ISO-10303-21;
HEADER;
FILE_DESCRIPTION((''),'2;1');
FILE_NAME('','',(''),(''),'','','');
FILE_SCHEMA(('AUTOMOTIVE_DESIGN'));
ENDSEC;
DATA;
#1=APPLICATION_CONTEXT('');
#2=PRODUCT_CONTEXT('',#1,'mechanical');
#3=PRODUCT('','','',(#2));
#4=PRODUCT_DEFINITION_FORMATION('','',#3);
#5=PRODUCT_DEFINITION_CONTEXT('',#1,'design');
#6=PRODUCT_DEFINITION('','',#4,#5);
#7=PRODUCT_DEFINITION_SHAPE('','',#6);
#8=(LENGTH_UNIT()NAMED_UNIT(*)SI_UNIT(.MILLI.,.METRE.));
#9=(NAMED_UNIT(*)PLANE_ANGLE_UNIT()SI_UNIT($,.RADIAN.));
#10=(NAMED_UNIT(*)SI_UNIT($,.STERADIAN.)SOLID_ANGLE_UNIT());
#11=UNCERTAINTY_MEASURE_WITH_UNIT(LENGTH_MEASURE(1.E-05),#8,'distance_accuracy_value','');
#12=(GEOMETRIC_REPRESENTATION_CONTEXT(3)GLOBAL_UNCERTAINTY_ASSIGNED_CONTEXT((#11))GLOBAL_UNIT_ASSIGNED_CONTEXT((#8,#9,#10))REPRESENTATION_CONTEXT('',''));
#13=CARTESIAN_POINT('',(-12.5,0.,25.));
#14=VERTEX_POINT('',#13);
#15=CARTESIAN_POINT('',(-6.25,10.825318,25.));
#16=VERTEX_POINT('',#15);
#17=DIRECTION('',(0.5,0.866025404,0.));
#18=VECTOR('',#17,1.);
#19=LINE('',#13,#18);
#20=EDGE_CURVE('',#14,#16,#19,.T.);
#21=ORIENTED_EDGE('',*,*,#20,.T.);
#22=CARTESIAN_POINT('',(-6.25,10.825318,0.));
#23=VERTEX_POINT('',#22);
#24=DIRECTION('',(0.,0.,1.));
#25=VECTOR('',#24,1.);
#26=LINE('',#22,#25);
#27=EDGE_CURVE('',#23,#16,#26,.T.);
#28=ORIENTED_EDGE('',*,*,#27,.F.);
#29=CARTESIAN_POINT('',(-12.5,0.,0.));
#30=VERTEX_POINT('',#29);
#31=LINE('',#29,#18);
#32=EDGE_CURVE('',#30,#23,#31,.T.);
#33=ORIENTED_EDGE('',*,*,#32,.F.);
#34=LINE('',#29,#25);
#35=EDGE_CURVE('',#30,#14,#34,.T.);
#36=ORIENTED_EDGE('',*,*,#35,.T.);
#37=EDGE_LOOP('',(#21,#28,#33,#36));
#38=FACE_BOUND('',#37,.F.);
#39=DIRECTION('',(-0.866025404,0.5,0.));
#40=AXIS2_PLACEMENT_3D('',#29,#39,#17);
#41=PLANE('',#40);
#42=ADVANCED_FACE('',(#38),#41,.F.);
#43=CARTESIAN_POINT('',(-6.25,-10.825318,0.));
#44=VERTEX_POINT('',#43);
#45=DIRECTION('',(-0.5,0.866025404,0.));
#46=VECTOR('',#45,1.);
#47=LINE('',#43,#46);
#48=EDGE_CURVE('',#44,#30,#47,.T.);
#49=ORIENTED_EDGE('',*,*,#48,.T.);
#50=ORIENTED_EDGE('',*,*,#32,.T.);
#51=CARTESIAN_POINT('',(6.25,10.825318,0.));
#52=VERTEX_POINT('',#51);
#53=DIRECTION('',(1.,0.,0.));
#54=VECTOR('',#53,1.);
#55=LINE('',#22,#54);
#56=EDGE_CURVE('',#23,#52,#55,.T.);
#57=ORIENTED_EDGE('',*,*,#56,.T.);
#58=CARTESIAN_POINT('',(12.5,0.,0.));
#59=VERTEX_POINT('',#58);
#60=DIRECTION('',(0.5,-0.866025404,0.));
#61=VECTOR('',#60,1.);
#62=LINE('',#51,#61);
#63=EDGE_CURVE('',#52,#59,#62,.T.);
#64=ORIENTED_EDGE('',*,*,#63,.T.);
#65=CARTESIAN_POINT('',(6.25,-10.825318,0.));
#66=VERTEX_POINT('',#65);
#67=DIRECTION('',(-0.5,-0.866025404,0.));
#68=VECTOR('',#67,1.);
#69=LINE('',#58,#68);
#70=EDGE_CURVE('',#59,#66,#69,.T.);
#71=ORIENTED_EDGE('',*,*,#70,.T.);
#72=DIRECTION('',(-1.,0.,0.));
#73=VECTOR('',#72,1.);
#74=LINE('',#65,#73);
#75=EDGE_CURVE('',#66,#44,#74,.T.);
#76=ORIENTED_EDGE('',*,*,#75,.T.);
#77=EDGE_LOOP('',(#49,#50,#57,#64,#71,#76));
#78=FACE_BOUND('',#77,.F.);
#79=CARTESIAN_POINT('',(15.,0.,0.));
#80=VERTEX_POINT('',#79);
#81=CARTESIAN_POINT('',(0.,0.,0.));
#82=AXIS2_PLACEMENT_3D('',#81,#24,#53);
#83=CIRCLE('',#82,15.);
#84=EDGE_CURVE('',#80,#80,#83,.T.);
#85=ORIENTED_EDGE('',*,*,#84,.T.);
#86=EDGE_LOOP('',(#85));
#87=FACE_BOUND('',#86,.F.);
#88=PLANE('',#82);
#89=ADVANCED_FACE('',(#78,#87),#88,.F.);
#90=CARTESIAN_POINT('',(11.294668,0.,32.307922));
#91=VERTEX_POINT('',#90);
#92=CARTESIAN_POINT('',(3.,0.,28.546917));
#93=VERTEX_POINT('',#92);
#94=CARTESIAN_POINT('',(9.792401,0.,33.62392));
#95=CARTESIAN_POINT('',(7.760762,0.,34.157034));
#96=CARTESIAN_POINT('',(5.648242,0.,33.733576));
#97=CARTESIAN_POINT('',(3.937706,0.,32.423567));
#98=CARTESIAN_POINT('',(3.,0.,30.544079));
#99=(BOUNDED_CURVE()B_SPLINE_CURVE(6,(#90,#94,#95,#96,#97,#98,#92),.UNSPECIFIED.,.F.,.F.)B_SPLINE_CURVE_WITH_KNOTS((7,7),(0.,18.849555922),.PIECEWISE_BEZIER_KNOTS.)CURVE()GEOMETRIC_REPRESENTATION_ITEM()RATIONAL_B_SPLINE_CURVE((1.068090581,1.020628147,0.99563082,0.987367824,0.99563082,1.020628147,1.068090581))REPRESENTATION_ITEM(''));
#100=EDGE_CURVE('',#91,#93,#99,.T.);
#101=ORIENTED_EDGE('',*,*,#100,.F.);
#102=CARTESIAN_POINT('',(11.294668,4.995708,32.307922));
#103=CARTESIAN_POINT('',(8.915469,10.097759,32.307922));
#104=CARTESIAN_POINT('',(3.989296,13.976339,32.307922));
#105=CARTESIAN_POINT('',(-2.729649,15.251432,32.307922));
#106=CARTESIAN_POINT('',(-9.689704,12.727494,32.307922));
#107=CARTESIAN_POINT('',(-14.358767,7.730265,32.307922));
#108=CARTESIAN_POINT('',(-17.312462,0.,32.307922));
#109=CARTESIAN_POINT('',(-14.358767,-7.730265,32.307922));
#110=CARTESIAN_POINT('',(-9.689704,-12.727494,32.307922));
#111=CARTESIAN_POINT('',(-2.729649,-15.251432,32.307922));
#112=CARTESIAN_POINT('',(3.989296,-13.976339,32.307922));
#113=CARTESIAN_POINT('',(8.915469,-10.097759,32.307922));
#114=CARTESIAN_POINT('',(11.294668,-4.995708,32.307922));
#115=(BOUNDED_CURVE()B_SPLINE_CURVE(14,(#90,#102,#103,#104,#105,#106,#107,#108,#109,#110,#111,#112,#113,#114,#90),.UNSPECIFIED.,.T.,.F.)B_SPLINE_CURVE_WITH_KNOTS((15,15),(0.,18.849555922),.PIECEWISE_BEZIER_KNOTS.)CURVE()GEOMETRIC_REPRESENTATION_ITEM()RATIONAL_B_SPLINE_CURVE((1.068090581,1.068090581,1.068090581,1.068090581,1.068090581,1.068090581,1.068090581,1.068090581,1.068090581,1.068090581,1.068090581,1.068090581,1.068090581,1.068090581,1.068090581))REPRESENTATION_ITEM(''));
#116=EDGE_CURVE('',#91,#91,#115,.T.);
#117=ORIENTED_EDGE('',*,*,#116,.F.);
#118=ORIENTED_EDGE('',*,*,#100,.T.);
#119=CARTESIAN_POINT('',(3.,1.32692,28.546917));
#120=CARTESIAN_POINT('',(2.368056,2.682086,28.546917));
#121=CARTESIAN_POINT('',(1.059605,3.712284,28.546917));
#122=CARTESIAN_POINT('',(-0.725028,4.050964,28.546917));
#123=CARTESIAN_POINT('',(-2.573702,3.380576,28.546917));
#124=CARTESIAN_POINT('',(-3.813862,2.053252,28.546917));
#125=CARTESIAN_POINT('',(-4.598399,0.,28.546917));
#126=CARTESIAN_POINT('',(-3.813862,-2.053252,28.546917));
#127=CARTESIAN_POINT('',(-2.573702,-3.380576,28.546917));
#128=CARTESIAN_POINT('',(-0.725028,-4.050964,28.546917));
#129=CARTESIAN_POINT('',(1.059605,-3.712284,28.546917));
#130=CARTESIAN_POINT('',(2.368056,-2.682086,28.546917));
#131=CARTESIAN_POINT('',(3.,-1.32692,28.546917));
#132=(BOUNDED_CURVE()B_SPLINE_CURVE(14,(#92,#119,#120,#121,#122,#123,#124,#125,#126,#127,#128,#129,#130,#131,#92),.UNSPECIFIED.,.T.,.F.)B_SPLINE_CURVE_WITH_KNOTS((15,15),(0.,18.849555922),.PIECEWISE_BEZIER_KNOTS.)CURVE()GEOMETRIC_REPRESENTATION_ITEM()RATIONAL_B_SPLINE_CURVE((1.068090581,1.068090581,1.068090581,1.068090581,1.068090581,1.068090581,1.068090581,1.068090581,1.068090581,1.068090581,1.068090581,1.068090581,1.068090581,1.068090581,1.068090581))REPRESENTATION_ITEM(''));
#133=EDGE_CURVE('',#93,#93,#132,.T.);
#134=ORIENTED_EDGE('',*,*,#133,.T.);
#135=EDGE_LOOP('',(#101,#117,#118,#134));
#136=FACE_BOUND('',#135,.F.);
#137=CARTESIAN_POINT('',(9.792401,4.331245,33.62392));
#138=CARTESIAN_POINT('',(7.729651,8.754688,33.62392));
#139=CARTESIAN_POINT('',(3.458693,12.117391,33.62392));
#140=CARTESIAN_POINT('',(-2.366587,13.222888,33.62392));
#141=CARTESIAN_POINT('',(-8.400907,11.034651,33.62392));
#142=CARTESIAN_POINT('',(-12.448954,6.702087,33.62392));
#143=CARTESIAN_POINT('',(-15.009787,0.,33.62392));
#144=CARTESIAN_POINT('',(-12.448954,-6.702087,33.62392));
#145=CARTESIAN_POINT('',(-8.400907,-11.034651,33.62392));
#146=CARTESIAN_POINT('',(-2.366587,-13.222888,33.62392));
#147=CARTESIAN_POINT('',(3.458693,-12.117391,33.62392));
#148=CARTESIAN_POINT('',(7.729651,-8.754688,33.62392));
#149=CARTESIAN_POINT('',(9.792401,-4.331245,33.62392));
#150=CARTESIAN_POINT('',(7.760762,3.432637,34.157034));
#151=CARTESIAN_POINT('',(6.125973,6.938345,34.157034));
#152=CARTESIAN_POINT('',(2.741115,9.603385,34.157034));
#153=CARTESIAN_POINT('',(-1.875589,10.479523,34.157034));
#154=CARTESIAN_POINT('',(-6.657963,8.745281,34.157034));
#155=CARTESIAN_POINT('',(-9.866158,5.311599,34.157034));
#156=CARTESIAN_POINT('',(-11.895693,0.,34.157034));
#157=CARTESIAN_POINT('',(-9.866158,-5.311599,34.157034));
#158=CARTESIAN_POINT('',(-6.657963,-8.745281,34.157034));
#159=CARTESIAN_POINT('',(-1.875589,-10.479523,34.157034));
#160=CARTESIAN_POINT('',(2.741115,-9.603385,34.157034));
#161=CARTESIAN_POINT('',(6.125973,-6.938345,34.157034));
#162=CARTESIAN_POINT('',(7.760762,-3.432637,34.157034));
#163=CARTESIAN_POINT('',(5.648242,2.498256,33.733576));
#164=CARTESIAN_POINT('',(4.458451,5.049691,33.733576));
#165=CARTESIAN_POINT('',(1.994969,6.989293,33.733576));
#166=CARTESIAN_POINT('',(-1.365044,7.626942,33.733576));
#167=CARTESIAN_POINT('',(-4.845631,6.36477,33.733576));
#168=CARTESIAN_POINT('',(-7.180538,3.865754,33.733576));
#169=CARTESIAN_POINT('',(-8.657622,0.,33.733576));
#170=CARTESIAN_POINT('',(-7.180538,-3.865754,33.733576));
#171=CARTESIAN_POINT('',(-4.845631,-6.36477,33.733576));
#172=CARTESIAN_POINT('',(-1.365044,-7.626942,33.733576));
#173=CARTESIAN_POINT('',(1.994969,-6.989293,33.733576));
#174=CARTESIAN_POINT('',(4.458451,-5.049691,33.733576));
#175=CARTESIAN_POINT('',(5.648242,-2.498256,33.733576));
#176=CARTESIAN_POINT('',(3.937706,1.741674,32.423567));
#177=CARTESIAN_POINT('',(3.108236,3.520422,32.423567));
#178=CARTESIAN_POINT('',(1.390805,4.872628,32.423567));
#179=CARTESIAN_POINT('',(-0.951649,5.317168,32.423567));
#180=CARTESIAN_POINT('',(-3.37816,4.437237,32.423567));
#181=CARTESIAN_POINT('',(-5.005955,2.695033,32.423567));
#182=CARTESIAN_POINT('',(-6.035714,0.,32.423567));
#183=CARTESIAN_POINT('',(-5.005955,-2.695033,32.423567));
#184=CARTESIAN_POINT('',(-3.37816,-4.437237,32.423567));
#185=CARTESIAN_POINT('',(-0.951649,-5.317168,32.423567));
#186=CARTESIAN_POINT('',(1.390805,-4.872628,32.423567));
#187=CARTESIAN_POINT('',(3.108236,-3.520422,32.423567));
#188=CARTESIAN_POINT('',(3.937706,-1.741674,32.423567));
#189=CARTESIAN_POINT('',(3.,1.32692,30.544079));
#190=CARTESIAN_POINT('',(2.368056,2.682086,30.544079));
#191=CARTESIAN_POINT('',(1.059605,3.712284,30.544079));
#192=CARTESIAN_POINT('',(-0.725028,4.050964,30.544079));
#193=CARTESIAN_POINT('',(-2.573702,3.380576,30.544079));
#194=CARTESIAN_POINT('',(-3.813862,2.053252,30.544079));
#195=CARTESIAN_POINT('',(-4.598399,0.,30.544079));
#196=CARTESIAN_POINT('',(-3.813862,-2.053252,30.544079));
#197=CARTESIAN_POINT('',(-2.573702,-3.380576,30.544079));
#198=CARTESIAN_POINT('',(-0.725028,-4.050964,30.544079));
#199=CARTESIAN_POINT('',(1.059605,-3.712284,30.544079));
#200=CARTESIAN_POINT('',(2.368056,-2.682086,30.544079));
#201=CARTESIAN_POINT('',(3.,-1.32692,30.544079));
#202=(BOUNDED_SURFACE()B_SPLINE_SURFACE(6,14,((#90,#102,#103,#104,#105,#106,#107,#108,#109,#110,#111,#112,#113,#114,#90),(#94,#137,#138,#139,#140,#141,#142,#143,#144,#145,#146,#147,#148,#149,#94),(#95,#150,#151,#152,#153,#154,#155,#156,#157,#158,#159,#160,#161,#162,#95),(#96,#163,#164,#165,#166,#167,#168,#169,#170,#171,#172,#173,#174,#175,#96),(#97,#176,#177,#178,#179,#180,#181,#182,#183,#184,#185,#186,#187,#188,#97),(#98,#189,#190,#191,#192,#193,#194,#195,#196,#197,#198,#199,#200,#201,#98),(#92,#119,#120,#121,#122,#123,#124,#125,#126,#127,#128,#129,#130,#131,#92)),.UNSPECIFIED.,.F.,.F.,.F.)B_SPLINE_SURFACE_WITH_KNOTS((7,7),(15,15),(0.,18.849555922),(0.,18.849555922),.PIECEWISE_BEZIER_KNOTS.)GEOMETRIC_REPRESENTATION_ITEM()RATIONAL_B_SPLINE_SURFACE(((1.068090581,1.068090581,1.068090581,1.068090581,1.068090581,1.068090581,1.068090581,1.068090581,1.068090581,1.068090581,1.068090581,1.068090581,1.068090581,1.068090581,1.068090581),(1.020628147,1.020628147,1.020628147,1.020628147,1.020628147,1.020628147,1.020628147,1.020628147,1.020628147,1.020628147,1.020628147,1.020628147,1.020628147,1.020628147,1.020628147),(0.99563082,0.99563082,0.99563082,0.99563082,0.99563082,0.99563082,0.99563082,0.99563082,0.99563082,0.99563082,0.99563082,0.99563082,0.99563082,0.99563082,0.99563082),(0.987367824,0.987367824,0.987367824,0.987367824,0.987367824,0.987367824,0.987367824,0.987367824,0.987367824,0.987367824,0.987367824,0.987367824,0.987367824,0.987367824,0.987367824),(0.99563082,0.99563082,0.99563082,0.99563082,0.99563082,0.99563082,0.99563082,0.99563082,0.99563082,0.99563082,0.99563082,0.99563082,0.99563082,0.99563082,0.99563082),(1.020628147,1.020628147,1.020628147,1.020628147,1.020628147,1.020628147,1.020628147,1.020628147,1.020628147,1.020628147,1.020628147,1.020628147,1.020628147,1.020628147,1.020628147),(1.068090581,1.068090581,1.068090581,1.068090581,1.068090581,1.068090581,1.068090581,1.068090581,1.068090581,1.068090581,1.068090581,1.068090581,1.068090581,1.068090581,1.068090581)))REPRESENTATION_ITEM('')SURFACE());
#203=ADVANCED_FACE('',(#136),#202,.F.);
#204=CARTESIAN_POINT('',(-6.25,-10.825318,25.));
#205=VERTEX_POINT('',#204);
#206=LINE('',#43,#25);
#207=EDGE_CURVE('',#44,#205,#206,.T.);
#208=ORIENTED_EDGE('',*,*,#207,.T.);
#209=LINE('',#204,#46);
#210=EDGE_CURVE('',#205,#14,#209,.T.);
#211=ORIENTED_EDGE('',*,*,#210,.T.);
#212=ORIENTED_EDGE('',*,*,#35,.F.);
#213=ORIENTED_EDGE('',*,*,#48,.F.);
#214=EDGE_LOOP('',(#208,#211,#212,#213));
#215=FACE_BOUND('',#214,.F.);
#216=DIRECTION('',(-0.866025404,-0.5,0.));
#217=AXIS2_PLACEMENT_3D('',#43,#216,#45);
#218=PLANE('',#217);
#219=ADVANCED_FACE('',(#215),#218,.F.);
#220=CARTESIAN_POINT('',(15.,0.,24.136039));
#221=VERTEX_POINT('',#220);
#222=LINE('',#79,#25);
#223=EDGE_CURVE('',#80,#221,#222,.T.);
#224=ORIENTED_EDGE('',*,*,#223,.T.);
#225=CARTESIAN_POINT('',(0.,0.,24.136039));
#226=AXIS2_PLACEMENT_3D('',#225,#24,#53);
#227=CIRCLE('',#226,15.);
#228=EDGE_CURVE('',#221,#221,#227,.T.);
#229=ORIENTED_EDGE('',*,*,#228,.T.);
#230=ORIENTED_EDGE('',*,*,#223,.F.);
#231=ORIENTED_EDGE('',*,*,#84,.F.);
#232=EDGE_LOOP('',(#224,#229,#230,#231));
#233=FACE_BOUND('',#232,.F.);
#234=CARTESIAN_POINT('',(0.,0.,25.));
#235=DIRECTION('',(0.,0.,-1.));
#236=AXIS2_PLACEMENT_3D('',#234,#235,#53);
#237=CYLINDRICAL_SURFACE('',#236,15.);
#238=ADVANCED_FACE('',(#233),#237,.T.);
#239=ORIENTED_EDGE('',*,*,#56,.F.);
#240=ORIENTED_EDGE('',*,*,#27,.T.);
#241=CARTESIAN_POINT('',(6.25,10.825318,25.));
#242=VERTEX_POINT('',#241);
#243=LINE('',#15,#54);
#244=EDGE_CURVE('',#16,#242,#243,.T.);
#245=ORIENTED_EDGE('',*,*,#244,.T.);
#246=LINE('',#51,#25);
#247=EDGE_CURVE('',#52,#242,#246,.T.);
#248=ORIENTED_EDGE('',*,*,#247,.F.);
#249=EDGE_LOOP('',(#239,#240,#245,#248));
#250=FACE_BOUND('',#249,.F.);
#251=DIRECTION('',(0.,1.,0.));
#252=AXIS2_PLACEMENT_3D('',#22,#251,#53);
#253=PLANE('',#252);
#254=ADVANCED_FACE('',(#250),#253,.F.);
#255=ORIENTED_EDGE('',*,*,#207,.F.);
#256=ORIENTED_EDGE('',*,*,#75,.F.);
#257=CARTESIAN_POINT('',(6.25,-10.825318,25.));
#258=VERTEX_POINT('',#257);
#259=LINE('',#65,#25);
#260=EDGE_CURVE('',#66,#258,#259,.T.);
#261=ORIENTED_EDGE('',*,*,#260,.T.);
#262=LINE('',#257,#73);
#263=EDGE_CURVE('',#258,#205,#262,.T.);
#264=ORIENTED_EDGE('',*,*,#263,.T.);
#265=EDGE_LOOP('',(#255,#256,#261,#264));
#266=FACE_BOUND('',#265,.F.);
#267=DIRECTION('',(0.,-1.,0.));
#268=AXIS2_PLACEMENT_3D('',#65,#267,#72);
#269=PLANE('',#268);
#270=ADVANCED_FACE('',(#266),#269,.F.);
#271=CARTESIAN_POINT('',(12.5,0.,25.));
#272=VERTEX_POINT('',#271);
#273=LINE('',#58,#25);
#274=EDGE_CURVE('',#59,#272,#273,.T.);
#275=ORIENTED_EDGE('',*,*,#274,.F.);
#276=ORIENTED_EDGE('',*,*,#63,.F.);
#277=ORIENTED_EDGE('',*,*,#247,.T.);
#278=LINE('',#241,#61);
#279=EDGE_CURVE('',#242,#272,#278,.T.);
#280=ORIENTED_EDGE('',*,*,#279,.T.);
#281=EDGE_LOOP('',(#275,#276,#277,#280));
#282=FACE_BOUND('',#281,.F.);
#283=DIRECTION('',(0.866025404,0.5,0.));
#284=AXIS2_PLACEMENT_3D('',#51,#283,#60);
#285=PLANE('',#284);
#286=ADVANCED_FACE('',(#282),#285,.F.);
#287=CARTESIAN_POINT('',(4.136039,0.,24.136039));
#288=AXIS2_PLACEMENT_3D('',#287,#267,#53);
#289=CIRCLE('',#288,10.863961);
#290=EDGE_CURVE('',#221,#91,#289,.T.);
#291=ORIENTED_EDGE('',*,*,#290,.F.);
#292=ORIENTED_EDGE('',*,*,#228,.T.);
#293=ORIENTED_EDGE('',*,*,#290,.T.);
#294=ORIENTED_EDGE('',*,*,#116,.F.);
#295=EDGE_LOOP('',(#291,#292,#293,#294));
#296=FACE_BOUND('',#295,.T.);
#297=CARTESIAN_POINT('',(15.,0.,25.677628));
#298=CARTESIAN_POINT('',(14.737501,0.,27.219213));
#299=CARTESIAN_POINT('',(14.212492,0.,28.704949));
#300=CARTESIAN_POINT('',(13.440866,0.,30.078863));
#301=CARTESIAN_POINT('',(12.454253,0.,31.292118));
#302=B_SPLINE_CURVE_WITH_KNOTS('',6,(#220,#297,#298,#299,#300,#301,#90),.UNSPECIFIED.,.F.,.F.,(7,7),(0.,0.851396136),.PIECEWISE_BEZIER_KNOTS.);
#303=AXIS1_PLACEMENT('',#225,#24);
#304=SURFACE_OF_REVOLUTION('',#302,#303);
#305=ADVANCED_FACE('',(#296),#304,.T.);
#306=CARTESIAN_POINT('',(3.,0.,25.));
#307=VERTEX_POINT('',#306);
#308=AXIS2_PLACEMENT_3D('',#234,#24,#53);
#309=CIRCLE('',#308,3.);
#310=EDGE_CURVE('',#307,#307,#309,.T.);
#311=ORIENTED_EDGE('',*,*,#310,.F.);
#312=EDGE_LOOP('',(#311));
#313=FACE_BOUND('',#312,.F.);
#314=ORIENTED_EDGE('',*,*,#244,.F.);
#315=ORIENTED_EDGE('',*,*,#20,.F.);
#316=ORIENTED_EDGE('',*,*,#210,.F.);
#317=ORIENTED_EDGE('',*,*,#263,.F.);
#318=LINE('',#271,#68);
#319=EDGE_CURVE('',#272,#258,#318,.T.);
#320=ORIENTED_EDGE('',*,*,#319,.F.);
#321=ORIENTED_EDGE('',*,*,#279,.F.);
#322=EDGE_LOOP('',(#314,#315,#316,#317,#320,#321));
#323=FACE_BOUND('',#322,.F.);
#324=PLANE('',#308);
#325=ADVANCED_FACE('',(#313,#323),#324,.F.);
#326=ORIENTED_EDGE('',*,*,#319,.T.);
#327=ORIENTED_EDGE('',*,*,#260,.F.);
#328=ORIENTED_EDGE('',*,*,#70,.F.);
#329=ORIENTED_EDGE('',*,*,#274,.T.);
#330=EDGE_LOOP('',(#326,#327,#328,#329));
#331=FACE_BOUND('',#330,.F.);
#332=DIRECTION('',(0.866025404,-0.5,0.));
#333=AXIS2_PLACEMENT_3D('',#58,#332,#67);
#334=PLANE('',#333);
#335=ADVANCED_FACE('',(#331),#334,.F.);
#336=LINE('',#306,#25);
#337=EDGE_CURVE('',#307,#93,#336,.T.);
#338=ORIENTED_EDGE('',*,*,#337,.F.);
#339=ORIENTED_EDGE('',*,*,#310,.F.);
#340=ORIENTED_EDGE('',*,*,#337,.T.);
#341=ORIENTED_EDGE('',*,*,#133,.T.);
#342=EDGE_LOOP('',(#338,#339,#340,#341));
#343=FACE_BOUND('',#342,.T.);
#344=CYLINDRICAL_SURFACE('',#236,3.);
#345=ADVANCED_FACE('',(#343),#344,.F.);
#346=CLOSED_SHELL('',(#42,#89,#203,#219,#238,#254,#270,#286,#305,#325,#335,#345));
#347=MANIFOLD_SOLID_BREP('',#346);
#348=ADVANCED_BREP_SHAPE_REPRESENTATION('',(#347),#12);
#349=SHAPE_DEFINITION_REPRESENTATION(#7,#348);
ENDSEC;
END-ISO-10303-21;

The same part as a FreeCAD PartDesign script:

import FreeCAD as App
import Part
import Sketcher
Q = App.Units.Quantity


def edges_at(feature, points):
    """Names of the edges that pass closest to the given points."""
    edges = feature.Shape.Edges
    near = lambda p: min(range(len(edges)), key=lambda i: edges[i].distToShape(Part.Vertex(*p))[0])
    return sorted({f"Edge{near(p) + 1}" for p in points})

doc = App.newDocument("Part")
params = doc.addObject("Spreadsheet::Sheet", "Params")
for row, (alias, value) in enumerate([
    ("sketch1_diameter", "30 mm"),
    ("sketch1_width", "12.5 mm"),
    ("pad1_length", "25 mm"),
    ("sketch2_diameter", "30 mm"),
    ("sketch2_diameter2", "6 mm"),
    ("pad2_length", "10 mm"),
    ("fillet_radius", "10.863961 mm"),
    ("fillet2_radius", "5 mm"),
], start=1):
    params.set(f"A{row}", alias)
    params.set(f"B{row}", "=" + value)
    params.setAlias(f"B{row}", alias)

body = doc.addObject("PartDesign::Body", "Body")

# Sketch on XY plane
sketch1 = doc.addObject("Sketcher::SketchObject", "Sketch")
body.addObject(sketch1)
sketch1.AttachmentSupport = (doc.XY_Plane, [""])
sketch1.MapMode = "FlatFace"
sketch1.addGeometry(Part.Circle(App.Vector(0, 0, 0), App.Vector(0, 0, 1), 15), False)
sketch1.addGeometry(Part.LineSegment(App.Vector(6, 11, 0), App.Vector(12, 0, 0)), False)
sketch1.addGeometry(Part.LineSegment(App.Vector(12, 0, 0), App.Vector(6, -11, 0)), False)
sketch1.addGeometry(Part.LineSegment(App.Vector(6, -11, 0), App.Vector(-6, -11, 0)), False)
sketch1.addGeometry(Part.LineSegment(App.Vector(-6, -11, 0), App.Vector(-12, 0, 0)), False)
sketch1.addGeometry(Part.LineSegment(App.Vector(-12, 0, 0), App.Vector(-6, 11, 0)), False)
sketch1.addGeometry(Part.LineSegment(App.Vector(-6, 11, 0), App.Vector(6, 11, 0)), False)
sketch1.addConstraint(Sketcher.Constraint("Coincident", 1, 2, 2, 1))
sketch1.addConstraint(Sketcher.Constraint("Coincident", 2, 2, 3, 1))
sketch1.addConstraint(Sketcher.Constraint("Coincident", 3, 2, 4, 1))
sketch1.addConstraint(Sketcher.Constraint("Coincident", 4, 2, 5, 1))
sketch1.addConstraint(Sketcher.Constraint("Coincident", 5, 2, 6, 1))
sketch1.addConstraint(Sketcher.Constraint("Coincident", 6, 2, 1, 1))
sketch1.addConstraint(Sketcher.Constraint("Horizontal", 3))
sketch1.addConstraint(Sketcher.Constraint("Horizontal", 6))
sketch1.addConstraint(Sketcher.Constraint("Coincident", 0, 3, -1, 1))
sketch1.addConstraint(Sketcher.Constraint("Symmetric", 1, 2, 4, 2, -1, 1))
sketch1.addConstraint(Sketcher.Constraint("Symmetric", 2, 2, 5, 2, -1, 1))
sketch1.addConstraint(Sketcher.Constraint("PointOnObject", 1, 2, -1))
sketch1.addConstraint(Sketcher.Constraint("Parallel", 1, 4))
sketch1.addConstraint(Sketcher.Constraint("Vertical", 3, 2, 5, 2))
sketch1.addConstraint(Sketcher.Constraint("Diameter", 0, Q("30 mm")))
sketch1.addConstraint(Sketcher.Constraint("Angle", 1, Q("-60 deg")))
sketch1.addConstraint(Sketcher.Constraint("DistanceX", 3, 2, 3, 1, Q("12.5 mm")))
sketch1.addConstraint(Sketcher.Constraint("DistanceX", 4, 2, 1, 2, Q("25 mm")))
sketch1.setExpression("Constraints[14]", "Params.sketch1_diameter")
sketch1.setExpression("Constraints[16]", "Params.sketch1_width")
pad1 = doc.addObject("PartDesign::Pad", "Pad")
body.addObject(pad1)
pad1.Profile = sketch1
pad1.setExpression("Length", "Params.pad1_length")

# Sketch on XY plane
sketch2 = doc.addObject("Sketcher::SketchObject", "Sketch001")
body.addObject(sketch2)
sketch2.AttachmentSupport = (doc.XY_Plane, [""])
sketch2.MapMode = "FlatFace"
sketch2.AttachmentOffset = App.Placement(App.Vector(0, 0, 25), App.Rotation())
sketch2.addGeometry(Part.Circle(App.Vector(0, 0, 0), App.Vector(0, 0, 1), 15), False)
sketch2.addGeometry(Part.Circle(App.Vector(0, 0, 0), App.Vector(0, 0, 1), 3), False)
sketch2.addConstraint(Sketcher.Constraint("Coincident", 0, 3, -1, 1))
sketch2.addConstraint(Sketcher.Constraint("Coincident", 1, 3, -1, 1))
sketch2.addConstraint(Sketcher.Constraint("Diameter", 0, Q("30 mm")))
sketch2.addConstraint(Sketcher.Constraint("Diameter", 1, Q("6 mm")))
sketch2.setExpression("Constraints[2]", "Params.sketch2_diameter")
sketch2.setExpression("Constraints[3]", "Params.sketch2_diameter2")
pad2 = doc.addObject("PartDesign::Pad", "Pad001")
body.addObject(pad2)
pad2.Profile = sketch2
pad2.setExpression("Length", "Params.pad2_length")
doc.recompute()

fillet = doc.addObject("PartDesign::Fillet", "Fillet")
body.addObject(fillet)
fillet.Base = (pad2, edges_at(pad2, [(-15, 0, 35)]))
fillet.setExpression("Radius", "Params.fillet_radius")
doc.recompute()

fillet2 = doc.addObject("PartDesign::Fillet", "Fillet001")
body.addObject(fillet2)
fillet2.Base = (fillet, edges_at(fillet, [(-3, 0, 35)]))
fillet2.setExpression("Radius", "Params.fillet2_radius")

doc.recompute()
